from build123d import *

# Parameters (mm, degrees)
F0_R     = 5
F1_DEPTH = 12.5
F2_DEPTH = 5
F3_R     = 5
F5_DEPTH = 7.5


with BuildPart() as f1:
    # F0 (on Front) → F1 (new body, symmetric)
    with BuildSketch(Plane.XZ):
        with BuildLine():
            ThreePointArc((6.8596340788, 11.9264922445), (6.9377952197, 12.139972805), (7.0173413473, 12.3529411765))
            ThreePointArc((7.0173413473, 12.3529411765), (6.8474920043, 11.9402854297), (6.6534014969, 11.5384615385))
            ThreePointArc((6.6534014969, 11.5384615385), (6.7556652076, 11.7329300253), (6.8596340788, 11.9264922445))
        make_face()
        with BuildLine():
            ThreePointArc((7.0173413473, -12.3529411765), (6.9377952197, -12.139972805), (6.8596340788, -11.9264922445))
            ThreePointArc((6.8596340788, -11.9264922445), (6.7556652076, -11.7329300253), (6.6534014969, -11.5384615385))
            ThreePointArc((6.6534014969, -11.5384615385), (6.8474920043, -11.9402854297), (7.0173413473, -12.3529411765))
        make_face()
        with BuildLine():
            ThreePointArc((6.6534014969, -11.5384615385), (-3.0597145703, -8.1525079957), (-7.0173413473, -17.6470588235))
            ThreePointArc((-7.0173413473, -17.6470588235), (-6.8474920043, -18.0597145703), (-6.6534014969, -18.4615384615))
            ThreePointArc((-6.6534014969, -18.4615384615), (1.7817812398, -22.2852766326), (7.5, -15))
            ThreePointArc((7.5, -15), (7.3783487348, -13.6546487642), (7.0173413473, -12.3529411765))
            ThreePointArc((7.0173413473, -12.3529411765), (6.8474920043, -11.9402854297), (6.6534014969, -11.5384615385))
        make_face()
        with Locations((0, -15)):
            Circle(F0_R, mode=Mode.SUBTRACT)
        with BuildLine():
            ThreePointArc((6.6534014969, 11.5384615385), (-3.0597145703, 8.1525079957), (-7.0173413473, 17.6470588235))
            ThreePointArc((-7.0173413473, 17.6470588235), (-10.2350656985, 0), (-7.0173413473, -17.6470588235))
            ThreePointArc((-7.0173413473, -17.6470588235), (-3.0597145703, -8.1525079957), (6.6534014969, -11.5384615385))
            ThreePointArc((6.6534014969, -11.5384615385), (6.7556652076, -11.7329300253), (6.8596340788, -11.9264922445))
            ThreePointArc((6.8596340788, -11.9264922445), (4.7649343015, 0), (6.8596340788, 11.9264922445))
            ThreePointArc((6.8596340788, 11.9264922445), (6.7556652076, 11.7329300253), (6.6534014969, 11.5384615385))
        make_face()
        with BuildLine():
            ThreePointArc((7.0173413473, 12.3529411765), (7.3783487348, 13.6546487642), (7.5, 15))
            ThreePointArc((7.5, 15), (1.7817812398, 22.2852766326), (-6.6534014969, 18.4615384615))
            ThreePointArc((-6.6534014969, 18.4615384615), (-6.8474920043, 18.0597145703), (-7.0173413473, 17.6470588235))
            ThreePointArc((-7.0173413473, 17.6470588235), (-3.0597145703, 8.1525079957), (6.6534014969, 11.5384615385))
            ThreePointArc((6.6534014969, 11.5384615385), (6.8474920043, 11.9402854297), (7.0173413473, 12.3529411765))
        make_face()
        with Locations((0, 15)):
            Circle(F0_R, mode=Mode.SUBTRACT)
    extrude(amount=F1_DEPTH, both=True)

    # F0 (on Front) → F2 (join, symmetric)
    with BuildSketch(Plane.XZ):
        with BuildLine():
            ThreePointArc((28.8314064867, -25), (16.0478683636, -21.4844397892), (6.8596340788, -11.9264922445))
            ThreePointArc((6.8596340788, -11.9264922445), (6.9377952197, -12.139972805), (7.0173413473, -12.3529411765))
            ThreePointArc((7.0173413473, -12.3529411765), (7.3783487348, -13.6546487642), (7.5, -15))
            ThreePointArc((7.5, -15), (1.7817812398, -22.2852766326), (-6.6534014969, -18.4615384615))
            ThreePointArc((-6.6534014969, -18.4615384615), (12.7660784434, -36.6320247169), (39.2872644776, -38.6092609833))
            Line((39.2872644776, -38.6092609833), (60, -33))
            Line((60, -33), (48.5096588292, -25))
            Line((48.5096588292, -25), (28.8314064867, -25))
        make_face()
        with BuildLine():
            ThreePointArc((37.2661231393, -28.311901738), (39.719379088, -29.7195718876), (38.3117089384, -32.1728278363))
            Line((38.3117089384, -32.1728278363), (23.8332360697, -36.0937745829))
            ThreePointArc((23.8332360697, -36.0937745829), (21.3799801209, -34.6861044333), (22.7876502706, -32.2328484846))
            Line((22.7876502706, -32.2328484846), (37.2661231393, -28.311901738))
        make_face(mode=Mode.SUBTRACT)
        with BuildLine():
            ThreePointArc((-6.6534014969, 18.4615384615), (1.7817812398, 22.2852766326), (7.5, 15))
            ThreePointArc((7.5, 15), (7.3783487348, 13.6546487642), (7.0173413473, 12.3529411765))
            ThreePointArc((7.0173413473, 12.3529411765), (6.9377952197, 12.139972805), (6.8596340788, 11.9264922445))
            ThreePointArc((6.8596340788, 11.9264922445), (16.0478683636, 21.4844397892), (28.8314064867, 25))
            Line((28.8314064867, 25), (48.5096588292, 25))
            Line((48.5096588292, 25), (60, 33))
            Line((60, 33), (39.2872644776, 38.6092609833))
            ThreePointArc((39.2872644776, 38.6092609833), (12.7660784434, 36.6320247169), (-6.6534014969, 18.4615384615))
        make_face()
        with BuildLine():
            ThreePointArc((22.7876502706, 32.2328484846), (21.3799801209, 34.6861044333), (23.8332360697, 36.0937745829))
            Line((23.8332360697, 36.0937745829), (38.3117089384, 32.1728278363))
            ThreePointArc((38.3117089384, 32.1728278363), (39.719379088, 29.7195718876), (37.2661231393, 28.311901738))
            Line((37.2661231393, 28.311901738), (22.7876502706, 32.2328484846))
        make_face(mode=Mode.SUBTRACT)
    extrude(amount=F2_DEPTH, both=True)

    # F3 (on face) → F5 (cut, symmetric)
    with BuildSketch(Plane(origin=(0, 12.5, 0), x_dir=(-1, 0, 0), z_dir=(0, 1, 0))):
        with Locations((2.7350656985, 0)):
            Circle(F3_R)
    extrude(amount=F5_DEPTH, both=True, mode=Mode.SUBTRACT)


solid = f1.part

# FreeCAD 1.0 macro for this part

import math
import FreeCAD as App
import Part
import Sketcher
Q = App.Units.Quantity

doc = App.newDocument("Part")
params = doc.addObject("Spreadsheet::Sheet", "Params")
for row, (alias, value) in enumerate([
    ("sketch1_diameter", "10 mm"),
    ("sketch1_radius", "35.000001 mm"),
    ("sketch1_radius2", "50 mm"),
    ("pad1_length", "25 mm"),
    ("sketch2_radius", "25 mm"),
    ("sketch2_radius2", "35.000001 mm"),
    ("sketch2_radius3", "40 mm"),
    ("sketch2_radius4", "2 mm"),
    ("sketch2_radius5", "7.5 mm"),
    ("pad2_length", "10 mm"),
    ("sketch3_diameter", "10 mm"),
    ("pocket1_length", "15 mm"),
], start=1):
    params.set(f"A{row}", alias)
    params.set(f"B{row}", "=" + value)
    params.setAlias(f"B{row}", alias)

body = doc.addObject("PartDesign::Body", "Body")

sketch1 = body.newObject("Sketcher::SketchObject", "Sketch")
sketch1.AttachmentSupport = (doc.getObject("XZ_Plane"), [""])
sketch1.MapMode = "FlatFace"
sketch1.addGeometry([
    Part.ArcOfCircle(Part.Circle(App.Vector(39.76, 0, 0), App.Vector(0, 0, 1), 35), math.radians(159.33), math.radians(160.08)),
    Part.ArcOfCircle(Part.Circle(App.Vector(0, 15, 0), App.Vector(0, 0, 1), 7.5), math.radians(-21), math.radians(0)),
    Part.ArcOfCircle(Part.Circle(App.Vector(0, 15, 0), App.Vector(0, 0, 1), 7.5), math.radians(0), math.radians(153)),
    Part.ArcOfCircle(Part.Circle(App.Vector(0, 15, 0), App.Vector(0, 0, 1), 7.5), math.radians(152.51), math.radians(159.33)),
    Part.ArcOfCircle(Part.Circle(App.Vector(39.76, 0, 0), App.Vector(0, 0, 1), 50), math.radians(159), math.radians(201)),
    Part.ArcOfCircle(Part.Circle(App.Vector(0, -15, 0), App.Vector(0, 0, 1), 7.5), math.radians(-159.33), math.radians(-152.51)),
    Part.ArcOfCircle(Part.Circle(App.Vector(0, -15, 0), App.Vector(0, 0, 1), 7.5), math.radians(-153), math.radians(0)),
    Part.ArcOfCircle(Part.Circle(App.Vector(0, -15, 0), App.Vector(0, 0, 1), 7.5), math.radians(0), math.radians(21)),
    Part.ArcOfCircle(Part.Circle(App.Vector(39.76, 0, 0), App.Vector(0, 0, 1), 35), math.radians(-160.08), math.radians(-159.33)),
    Part.ArcOfCircle(Part.Circle(App.Vector(39.76, 0, 0), App.Vector(0, 0, 1), 35), math.radians(160), math.radians(200)),
    Part.Circle(App.Vector(0, -15, 0), App.Vector(0, 0, 1), 5),
    Part.Circle(App.Vector(0, 15, 0), App.Vector(0, 0, 1), 5),
], False)
sketch1.addConstraint([
    Sketcher.Constraint("Tangent", 0, 1, 1, 1),
    Sketcher.Constraint("Tangent", 1, 2, 2, 1),
    Sketcher.Constraint("Tangent", 2, 2, 3, 1),
    Sketcher.Constraint("Tangent", 3, 2, 4, 1),
    Sketcher.Constraint("Tangent", 4, 2, 5, 1),
    Sketcher.Constraint("Tangent", 5, 2, 6, 1),
    Sketcher.Constraint("Tangent", 6, 2, 7, 1),
    Sketcher.Constraint("Tangent", 7, 2, 8, 2),
    Sketcher.Constraint("Tangent", 8, 1, 9, 2),
    Sketcher.Constraint("Tangent", 9, 1, 0, 2),
    Sketcher.Constraint("Coincident", 3, 3, 1, 3),
    Sketcher.Constraint("Coincident", 4, 3, 0, 3),
    Sketcher.Constraint("Coincident", 7, 3, 5, 3),
    Sketcher.Constraint("Coincident", 8, 3, 0, 3),
    Sketcher.Constraint("Coincident", 10, 3, 5, 3),
    Sketcher.Constraint("Coincident", 11, 3, 1, 3),
    Sketcher.Constraint("Equal", 10, 11),
    Sketcher.Constraint("Symmetric", 1, 3, 5, 3, -1, 1),
    Sketcher.Constraint("Symmetric", 2, 2, 5, 2, -1),
    Sketcher.Constraint("Horizontal", 11, 3, 1, 2),
    Sketcher.Constraint("Horizontal", 10, 3, 6, 2),
    Sketcher.Constraint("Vertical", 8, 1, 9, 1),
    Sketcher.Constraint("Diameter", 10, Q("10 mm")),
    Sketcher.Constraint("Radius", 0, Q("35.000001 mm")),
    Sketcher.Constraint("Radius", 4, Q("50 mm")),
    Sketcher.Constraint("DistanceY", -1, 1, 1, 3, Q("15 mm")),
    Sketcher.Constraint("DistanceX", 2, 2, -1, 1, Q("6.653401 mm")),
    Sketcher.Constraint("DistanceY", 7, 2, 8, 1, Q("0.426449 mm")),
])
sketch1.setExpression("Constraints[22]", "Params.sketch1_diameter")
sketch1.setExpression("Constraints[23]", "Params.sketch1_radius")
sketch1.setExpression("Constraints[24]", "Params.sketch1_radius2")
pad1 = body.newObject("PartDesign::Pad", "Pad")
pad1.Profile = sketch1
pad1.setExpression("Length", "Params.pad1_length")
pad1.Midplane = True

sketch2 = body.newObject("Sketcher::SketchObject", "Sketch001")
sketch2.AttachmentSupport = (doc.getObject("XZ_Plane"), [""])
sketch2.MapMode = "FlatFace"
sketch2.addGeometry([
    Part.ArcOfCircle(Part.Circle(App.Vector(28.83, 0, 0), App.Vector(0, 0, 1), 25), math.radians(-152), math.radians(-90)),
    Part.ArcOfCircle(Part.Circle(App.Vector(39.76, 0, 0), App.Vector(0, 0, 1), 35), math.radians(-160.08), math.radians(-159.33)),
    Part.ArcOfCircle(Part.Circle(App.Vector(0, -15, 0), App.Vector(0, 0, 1), 7.5), math.radians(0), math.radians(21)),
    Part.ArcOfCircle(Part.Circle(App.Vector(0, -15, 0), App.Vector(0, 0, 1), 7.5), math.radians(-153), math.radians(0)),
    Part.ArcOfCircle(Part.Circle(App.Vector(28.83, 0, 0), App.Vector(0, 0, 1), 40), math.radians(-153), math.radians(-75)),
    Part.LineSegment(App.Vector(39.29, -38.61, 0), App.Vector(60, -33, 0)),
    Part.LineSegment(App.Vector(60, -33, 0), App.Vector(48.51, -25, 0)),
    Part.LineSegment(App.Vector(48.51, -25, 0), App.Vector(28.83, -25, 0)),
    Part.LineSegment(App.Vector(22.79, -32.23, 0), App.Vector(37.27, -28.31, 0)),
    Part.ArcOfCircle(Part.Circle(App.Vector(37.79, -30.24, 0), App.Vector(0, 0, 1), 2), math.radians(-75), math.radians(105)),
    Part.LineSegment(App.Vector(38.31, -32.17, 0), App.Vector(23.83, -36.09, 0)),
    Part.ArcOfCircle(Part.Circle(App.Vector(23.31, -34.16, 0), App.Vector(0, 0, 1), 2), math.radians(105), math.radians(285)),
    Part.ArcOfCircle(Part.Circle(App.Vector(0, 15, 0), App.Vector(0, 0, 1), 7.5), math.radians(0), math.radians(153)),
    Part.ArcOfCircle(Part.Circle(App.Vector(0, 15, 0), App.Vector(0, 0, 1), 7.5), math.radians(-21), math.radians(0)),
    Part.ArcOfCircle(Part.Circle(App.Vector(39.76, 0, 0), App.Vector(0, 0, 1), 35), math.radians(159.33), math.radians(160.08)),
    Part.ArcOfCircle(Part.Circle(App.Vector(28.83, 0, 0), App.Vector(0, 0, 1), 25), math.radians(90), math.radians(152)),
    Part.LineSegment(App.Vector(28.83, 25, 0), App.Vector(48.51, 25, 0)),
    Part.LineSegment(App.Vector(48.51, 25, 0), App.Vector(60, 33, 0)),
    Part.LineSegment(App.Vector(60, 33, 0), App.Vector(39.29, 38.61, 0)),
    Part.ArcOfCircle(Part.Circle(App.Vector(28.83, 0, 0), App.Vector(0, 0, 1), 40), math.radians(75), math.radians(153)),
    Part.LineSegment(App.Vector(37.27, 28.31, 0), App.Vector(22.79, 32.23, 0)),
    Part.ArcOfCircle(Part.Circle(App.Vector(23.31, 34.16, 0), App.Vector(0, 0, 1), 2), math.radians(75), math.radians(255)),
    Part.LineSegment(App.Vector(23.83, 36.09, 0), App.Vector(38.31, 32.17, 0)),
    Part.ArcOfCircle(Part.Circle(App.Vector(37.79, 30.24, 0), App.Vector(0, 0, 1), 2), math.radians(-105), math.radians(75)),
], False)
sketch2.addConstraint([
    Sketcher.Constraint("Coincident", 0, 1, 1, 1),
    Sketcher.Constraint("Tangent", 1, 2, 2, 2),
    Sketcher.Constraint("Tangent", 2, 1, 3, 2),
    Sketcher.Constraint("Tangent", 3, 1, 4, 1),
    Sketcher.Constraint("Tangent", 4, 2, 5, 1),
    Sketcher.Constraint("Coincident", 5, 2, 6, 1),
    Sketcher.Constraint("Coincident", 6, 2, 7, 1),
    Sketcher.Constraint("Tangent", 7, 2, 0, 2),
    Sketcher.Constraint("Tangent", 8, 2, 9, 2),
    Sketcher.Constraint("Tangent", 9, 1, 10, 1),
    Sketcher.Constraint("Tangent", 10, 2, 11, 2),
    Sketcher.Constraint("Tangent", 11, 1, 8, 1),
    Sketcher.Constraint("Tangent", 12, 1, 13, 2),
    Sketcher.Constraint("Tangent", 13, 1, 14, 1),
    Sketcher.Constraint("Coincident", 14, 2, 15, 2),
    Sketcher.Constraint("Tangent", 15, 1, 16, 1),
    Sketcher.Constraint("Coincident", 16, 2, 17, 1),
    Sketcher.Constraint("Coincident", 17, 2, 18, 1),
    Sketcher.Constraint("Tangent", 18, 2, 19, 1),
    Sketcher.Constraint("Tangent", 19, 2, 12, 2),
    Sketcher.Constraint("Tangent", 20, 2, 21, 2),
    Sketcher.Constraint("Tangent", 21, 1, 22, 1),
    Sketcher.Constraint("Tangent", 22, 2, 23, 2),
    Sketcher.Constraint("Tangent", 23, 1, 20, 1),
    Sketcher.Constraint("Horizontal", 7),
    Sketcher.Constraint("Horizontal", 16),
    Sketcher.Constraint("Coincident", 4, 3, 0, 3),
    Sketcher.Constraint("Coincident", 14, 3, 1, 3),
    Sketcher.Constraint("Coincident", 15, 3, 0, 3),
    Sketcher.Constraint("Coincident", 19, 3, 0, 3),
    Sketcher.Constraint("Equal", 2, 3),
    Sketcher.Constraint("Equal", 9, 11),
    Sketcher.Constraint("Equal", 3, 12),
    Sketcher.Constraint("Equal", 12, 13),
    Sketcher.Constraint("Equal", 1, 14),
    Sketcher.Constraint("Equal", 0, 15),
    Sketcher.Constraint("Equal", 4, 19),
    Sketcher.Constraint("Equal", 11, 21),
    Sketcher.Constraint("Equal", 21, 23),
    Sketcher.Constraint("Symmetric", 2, 3, 12, 3, -1, 1),
    Sketcher.Constraint("Symmetric", 11, 3, 21, 3, -1),
    Sketcher.Constraint("Symmetric", 9, 3, 23, 3, -1),
    Sketcher.Constraint("Symmetric", 2, 1, 12, 1, -1),
    Sketcher.Constraint("Symmetric", 5, 2, 17, 2, -1),
    Sketcher.Constraint("Parallel", 5, 8),
    Sketcher.Constraint("Horizontal", 3, 3, 2, 1),
    Sketcher.Constraint("Vertical", 6, 2, 16, 2),
    Sketcher.Constraint("Radius", 0, Q("25 mm")),
    Sketcher.Constraint("Radius", 1, Q("35.000001 mm")),
    Sketcher.Constraint("Radius", 4, Q("40 mm")),
    Sketcher.Constraint("Radius", 9, Q("2 mm")),
    Sketcher.Constraint("Radius", 2, Q("7.5 mm")),
    Sketcher.Constraint("Distance", 8, Q("15 mm")),
    Sketcher.Constraint("DistanceY", 2, 3, -1, 1, Q("15 mm")),
    Sketcher.Constraint("DistanceX", -1, 1, 5, 2, Q("60 mm")),
    Sketcher.Constraint("DistanceY", 5, 2, -1, 1, Q("33 mm")),
    Sketcher.Constraint("DistanceY", 8, 2, -1, 1, Q("28.311902 mm")),
    Sketcher.Constraint("DistanceX", 7, 2, 7, 1, Q("19.678252 mm")),
    Sketcher.Constraint("DistanceX", -1, 1, 9, 1, Q("38.311709 mm")),
])
sketch2.setExpression("Constraints[47]", "Params.sketch2_radius")
sketch2.setExpression("Constraints[48]", "Params.sketch2_radius2")
sketch2.setExpression("Constraints[49]", "Params.sketch2_radius3")
sketch2.setExpression("Constraints[50]", "Params.sketch2_radius4")
sketch2.setExpression("Constraints[51]", "Params.sketch2_radius5")
pad2 = body.newObject("PartDesign::Pad", "Pad001")
pad2.Profile = sketch2
pad2.setExpression("Length", "Params.pad2_length")
pad2.Midplane = True

sketch3 = body.newObject("Sketcher::SketchObject", "Sketch002")
sketch3.AttachmentSupport = (doc.getObject("XZ_Plane"), [""])
sketch3.MapMode = "FlatFace"
sketch3.AttachmentOffset = App.Placement(App.Vector(0, 0, -12.5), App.Rotation())
sketch3.addGeometry(Part.Circle(App.Vector(-3, 0, 0), App.Vector(0, 0, 1), 5), False)
sketch3.addConstraint([
    Sketcher.Constraint("PointOnObject", 0, 3, -1),
    Sketcher.Constraint("Diameter", 0, Q("10 mm")),
    Sketcher.Constraint("DistanceX", 0, 3, -1, 1, Q("2.735066 mm")),
])
sketch3.setExpression("Constraints[1]", "Params.sketch3_diameter")
pocket1 = body.newObject("PartDesign::Pocket", "Pocket")
pocket1.Profile = sketch3
pocket1.setExpression("Length", "Params.pocket1_length")
pocket1.Midplane = True

doc.recompute()
